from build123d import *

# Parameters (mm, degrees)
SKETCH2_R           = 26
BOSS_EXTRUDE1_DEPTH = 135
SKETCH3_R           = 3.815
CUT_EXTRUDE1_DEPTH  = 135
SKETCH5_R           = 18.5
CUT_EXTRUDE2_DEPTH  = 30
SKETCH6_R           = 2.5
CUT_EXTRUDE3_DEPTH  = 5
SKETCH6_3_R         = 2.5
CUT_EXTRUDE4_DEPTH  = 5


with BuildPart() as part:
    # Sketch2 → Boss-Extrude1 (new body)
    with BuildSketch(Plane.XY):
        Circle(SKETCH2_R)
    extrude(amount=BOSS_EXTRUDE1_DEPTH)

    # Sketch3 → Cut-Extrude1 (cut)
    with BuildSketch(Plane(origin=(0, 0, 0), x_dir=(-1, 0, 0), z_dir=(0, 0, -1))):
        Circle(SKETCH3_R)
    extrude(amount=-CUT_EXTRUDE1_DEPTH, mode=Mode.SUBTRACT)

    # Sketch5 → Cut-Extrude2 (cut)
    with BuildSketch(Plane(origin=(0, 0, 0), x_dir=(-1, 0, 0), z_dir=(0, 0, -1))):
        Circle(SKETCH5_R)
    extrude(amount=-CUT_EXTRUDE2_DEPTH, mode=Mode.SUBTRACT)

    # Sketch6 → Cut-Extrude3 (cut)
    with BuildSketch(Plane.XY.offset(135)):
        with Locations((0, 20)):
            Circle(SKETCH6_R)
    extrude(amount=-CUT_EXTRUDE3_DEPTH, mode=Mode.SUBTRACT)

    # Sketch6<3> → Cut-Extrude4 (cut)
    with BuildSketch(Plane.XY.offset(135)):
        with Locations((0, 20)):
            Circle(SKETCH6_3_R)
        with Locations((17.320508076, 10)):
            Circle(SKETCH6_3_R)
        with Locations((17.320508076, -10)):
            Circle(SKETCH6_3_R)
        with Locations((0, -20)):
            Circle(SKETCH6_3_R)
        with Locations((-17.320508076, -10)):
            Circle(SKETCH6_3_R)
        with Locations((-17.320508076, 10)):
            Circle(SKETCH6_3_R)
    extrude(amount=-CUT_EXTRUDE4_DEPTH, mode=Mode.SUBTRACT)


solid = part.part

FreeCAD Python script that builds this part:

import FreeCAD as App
import Part
import Sketcher
Q = App.Units.Quantity

doc = App.newDocument("Part")
body = doc.addObject("PartDesign::Body", "Body")

sketch1 = body.newObject("Sketcher::SketchObject", "Sketch")
sketch1.AttachmentSupport = (doc.getObject("XY_Plane"), [""])
sketch1.MapMode = "FlatFace"
sketch1.addGeometry(Part.Circle(App.Vector(0, 0, 0), App.Vector(0, 0, 1), 26), False)
sketch1.addConstraint(Sketcher.Constraint("Coincident", 0, 3, -1, 1))
sketch1.addConstraint(Sketcher.Constraint("Diameter", 0, Q("52 mm")))
pad1 = body.newObject("PartDesign::Pad", "Pad")
pad1.Profile = sketch1
pad1.Length = 135

sketch2 = body.newObject("Sketcher::SketchObject", "Sketch001")
sketch2.AttachmentSupport = (doc.getObject("XY_Plane"), [""])
sketch2.MapMode = "FlatFace"
sketch2.addGeometry(Part.Circle(App.Vector(0, 0, 0), App.Vector(0, 0, 1), 3.815), False)
sketch2.addConstraint(Sketcher.Constraint("Coincident", 0, 3, -1, 1))
sketch2.addConstraint(Sketcher.Constraint("Diameter", 0, Q("7.63 mm")))
pocket1 = body.newObject("PartDesign::Pocket", "Pocket")
pocket1.Profile = sketch2
pocket1.Length = 135
pocket1.Reversed = True

sketch3 = body.newObject("Sketcher::SketchObject", "Sketch002")
sketch3.AttachmentSupport = (doc.getObject("XY_Plane"), [""])
sketch3.MapMode = "FlatFace"
sketch3.addGeometry(Part.Circle(App.Vector(0, 0, 0), App.Vector(0, 0, 1), 18.5), False)
sketch3.addConstraint(Sketcher.Constraint("Coincident", 0, 3, -1, 1))
sketch3.addConstraint(Sketcher.Constraint("Diameter", 0, Q("37 mm")))
pocket2 = body.newObject("PartDesign::Pocket", "Pocket001")
pocket2.Profile = sketch3
pocket2.Length = 30
pocket2.Reversed = True

sketch4 = body.newObject("Sketcher::SketchObject", "Sketch003")
sketch4.AttachmentSupport = (doc.getObject("XY_Plane"), [""])
sketch4.MapMode = "FlatFace"
sketch4.AttachmentOffset = App.Placement(App.Vector(0, 0, 135), App.Rotation())
sketch4.addGeometry(Part.Circle(App.Vector(0, 20, 0), App.Vector(0, 0, 1), 2.5), False)
sketch4.addConstraint(Sketcher.Constraint("PointOnObject", 0, 3, -2))
sketch4.addConstraint(Sketcher.Constraint("Diameter", 0, Q("5 mm")))
sketch4.addConstraint(Sketcher.Constraint("DistanceY", -1, 1, 0, 3, Q("20 mm")))
pocket3 = body.newObject("PartDesign::Pocket", "Pocket002")
pocket3.Profile = sketch4
pocket3.Length = 5

sketch5 = body.newObject("Sketcher::SketchObject", "Sketch004")
sketch5.AttachmentSupport = (doc.getObject("XY_Plane"), [""])
sketch5.MapMode = "FlatFace"
sketch5.AttachmentOffset = App.Placement(App.Vector(0, 0, 135), App.Rotation())
sketch5.addGeometry(Part.Circle(App.Vector(0, 20, 0), App.Vector(0, 0, 1), 2.5), False)
sketch5.addGeometry(Part.Circle(App.Vector(17.320508, 10, 0), App.Vector(0, 0, 1), 2.5), False)
sketch5.addGeometry(Part.Circle(App.Vector(17.320508, -10, 0), App.Vector(0, 0, 1), 2.5), False)
sketch5.addGeometry(Part.Circle(App.Vector(0, -20, 0), App.Vector(0, 0, 1), 2.5), False)
sketch5.addGeometry(Part.Circle(App.Vector(-17.320508, -10, 0), App.Vector(0, 0, 1), 2.5), False)
sketch5.addGeometry(Part.Circle(App.Vector(-17.320508, 10, 0), App.Vector(0, 0, 1), 2.5), False)
sketch5.addConstraint(Sketcher.Constraint("Equal", 0, 1))
sketch5.addConstraint(Sketcher.Constraint("Equal", 1, 2))
sketch5.addConstraint(Sketcher.Constraint("Equal", 2, 3))
sketch5.addConstraint(Sketcher.Constraint("Equal", 3, 4))
sketch5.addConstraint(Sketcher.Constraint("Equal", 4, 5))
sketch5.addConstraint(Sketcher.Constraint("Symmetric", 0, 3, 3, 3, -1, 1))
sketch5.addConstraint(Sketcher.Constraint("Symmetric", 1, 3, 4, 3, -1, 1))
sketch5.addConstraint(Sketcher.Constraint("Symmetric", 2, 3, 5, 3, -1, 1))
sketch5.addConstraint(Sketcher.Constraint("Symmetric", 2, 3, 4, 3, -2))
sketch5.addConstraint(Sketcher.Constraint("PointOnObject", 0, 3, -2))
sketch5.addConstraint(Sketcher.Constraint("Diameter", 0, Q("5 mm")))
sketch5.addConstraint(Sketcher.Constraint("DistanceY", -1, 1, 0, 3, Q("20 mm")))
sketch5.addConstraint(Sketcher.Constraint("DistanceY", -1, 1, 1, 3, Q("10 mm")))
sketch5.addConstraint(Sketcher.Constraint("DistanceX", -1, 1, 1, 3, Q("17.320508 mm")))
pocket4 = body.newObject("PartDesign::Pocket", "Pocket003")
pocket4.Profile = sketch5
pocket4.Length = 5

doc.recompute()
